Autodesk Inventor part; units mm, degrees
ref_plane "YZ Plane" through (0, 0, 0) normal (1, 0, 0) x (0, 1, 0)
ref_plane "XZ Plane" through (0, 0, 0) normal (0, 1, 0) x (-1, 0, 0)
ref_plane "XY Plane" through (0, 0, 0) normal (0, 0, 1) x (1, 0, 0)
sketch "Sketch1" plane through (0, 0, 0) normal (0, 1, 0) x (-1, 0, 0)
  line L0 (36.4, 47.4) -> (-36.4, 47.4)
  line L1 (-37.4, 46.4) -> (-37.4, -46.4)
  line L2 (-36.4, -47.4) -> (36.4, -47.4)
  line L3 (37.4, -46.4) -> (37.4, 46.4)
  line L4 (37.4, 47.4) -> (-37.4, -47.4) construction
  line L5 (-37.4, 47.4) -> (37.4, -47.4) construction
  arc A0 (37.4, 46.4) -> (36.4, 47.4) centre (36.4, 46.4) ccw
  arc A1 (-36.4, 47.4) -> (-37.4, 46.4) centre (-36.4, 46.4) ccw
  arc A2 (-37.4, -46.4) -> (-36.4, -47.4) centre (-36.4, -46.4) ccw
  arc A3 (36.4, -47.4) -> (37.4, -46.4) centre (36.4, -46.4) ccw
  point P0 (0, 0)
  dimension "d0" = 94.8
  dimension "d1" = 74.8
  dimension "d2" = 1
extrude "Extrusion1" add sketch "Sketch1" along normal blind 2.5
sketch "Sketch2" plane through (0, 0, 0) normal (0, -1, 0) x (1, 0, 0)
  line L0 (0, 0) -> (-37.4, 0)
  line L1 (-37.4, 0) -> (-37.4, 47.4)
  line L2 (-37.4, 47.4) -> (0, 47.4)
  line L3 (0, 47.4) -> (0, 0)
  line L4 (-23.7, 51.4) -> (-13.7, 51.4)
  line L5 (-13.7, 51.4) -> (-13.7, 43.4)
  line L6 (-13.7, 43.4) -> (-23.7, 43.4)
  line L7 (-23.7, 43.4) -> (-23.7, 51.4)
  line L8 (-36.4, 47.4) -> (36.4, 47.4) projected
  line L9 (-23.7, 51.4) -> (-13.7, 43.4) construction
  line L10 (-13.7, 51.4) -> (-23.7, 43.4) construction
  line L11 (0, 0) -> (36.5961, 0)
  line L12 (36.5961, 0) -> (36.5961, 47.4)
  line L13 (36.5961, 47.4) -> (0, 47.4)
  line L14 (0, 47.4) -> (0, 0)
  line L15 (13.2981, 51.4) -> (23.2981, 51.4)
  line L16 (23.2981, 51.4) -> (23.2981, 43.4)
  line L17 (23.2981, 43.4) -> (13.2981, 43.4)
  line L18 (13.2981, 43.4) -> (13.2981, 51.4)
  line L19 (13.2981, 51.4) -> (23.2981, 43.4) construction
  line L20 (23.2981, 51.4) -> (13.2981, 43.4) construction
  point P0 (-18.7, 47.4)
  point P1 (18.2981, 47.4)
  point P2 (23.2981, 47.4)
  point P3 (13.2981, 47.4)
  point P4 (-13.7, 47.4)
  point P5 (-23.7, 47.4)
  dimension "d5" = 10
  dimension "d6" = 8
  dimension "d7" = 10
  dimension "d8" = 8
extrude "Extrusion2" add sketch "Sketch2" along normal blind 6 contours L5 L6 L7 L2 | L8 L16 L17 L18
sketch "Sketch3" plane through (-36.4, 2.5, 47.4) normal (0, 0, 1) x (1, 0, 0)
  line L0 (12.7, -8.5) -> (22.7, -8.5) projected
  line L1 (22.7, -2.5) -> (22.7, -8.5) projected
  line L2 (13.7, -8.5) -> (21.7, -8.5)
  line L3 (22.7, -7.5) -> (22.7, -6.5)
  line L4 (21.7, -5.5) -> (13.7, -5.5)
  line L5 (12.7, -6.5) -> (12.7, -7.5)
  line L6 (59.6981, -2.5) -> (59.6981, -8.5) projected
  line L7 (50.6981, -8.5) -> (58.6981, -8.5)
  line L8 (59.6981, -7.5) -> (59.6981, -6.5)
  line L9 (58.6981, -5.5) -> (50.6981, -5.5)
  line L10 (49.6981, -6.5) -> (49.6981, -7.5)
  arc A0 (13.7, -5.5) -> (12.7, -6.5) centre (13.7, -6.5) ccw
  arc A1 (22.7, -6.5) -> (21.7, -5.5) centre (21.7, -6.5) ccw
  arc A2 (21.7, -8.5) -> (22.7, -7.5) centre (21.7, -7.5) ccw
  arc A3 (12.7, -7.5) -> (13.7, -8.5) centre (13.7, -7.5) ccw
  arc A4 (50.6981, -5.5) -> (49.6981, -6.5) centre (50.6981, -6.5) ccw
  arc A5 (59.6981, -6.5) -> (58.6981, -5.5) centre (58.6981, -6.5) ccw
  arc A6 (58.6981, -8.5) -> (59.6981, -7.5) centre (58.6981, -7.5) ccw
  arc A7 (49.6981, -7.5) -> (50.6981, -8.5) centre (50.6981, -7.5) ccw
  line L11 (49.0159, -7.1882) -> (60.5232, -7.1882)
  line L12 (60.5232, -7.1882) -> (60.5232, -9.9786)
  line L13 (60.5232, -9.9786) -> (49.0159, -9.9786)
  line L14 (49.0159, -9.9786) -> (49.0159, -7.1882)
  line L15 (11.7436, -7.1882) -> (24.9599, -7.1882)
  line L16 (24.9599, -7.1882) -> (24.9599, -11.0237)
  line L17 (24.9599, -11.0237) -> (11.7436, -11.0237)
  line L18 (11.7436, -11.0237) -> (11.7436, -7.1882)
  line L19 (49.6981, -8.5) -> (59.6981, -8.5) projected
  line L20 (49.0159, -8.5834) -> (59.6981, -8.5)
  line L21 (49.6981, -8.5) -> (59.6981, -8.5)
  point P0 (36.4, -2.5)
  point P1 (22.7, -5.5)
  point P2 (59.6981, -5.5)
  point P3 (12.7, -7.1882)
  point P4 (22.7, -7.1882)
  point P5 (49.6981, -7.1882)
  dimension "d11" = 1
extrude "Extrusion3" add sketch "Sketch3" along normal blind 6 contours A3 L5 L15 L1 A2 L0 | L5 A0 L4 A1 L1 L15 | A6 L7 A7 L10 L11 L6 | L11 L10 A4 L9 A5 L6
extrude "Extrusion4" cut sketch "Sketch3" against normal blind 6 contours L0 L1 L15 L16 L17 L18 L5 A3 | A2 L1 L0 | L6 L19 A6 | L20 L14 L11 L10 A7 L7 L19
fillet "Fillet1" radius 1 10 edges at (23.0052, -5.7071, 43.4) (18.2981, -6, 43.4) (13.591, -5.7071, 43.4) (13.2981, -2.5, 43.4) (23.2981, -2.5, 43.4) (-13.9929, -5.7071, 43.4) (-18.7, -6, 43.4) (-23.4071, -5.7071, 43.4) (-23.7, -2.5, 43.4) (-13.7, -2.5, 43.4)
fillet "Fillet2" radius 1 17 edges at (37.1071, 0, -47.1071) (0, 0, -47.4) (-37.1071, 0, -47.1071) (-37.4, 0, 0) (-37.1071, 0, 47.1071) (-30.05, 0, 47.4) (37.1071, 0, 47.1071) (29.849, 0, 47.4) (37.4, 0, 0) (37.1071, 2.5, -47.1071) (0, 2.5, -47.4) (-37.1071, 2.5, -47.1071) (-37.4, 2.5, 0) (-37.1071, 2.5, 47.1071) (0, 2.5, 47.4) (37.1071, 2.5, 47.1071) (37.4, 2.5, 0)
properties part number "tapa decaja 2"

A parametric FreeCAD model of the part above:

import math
import FreeCAD as App
import Part
import Sketcher


def edges_at(feature, points):
    """Names of the edges that pass closest to the given points."""
    edges = feature.Shape.Edges
    near = lambda p: min(range(len(edges)), key=lambda i: edges[i].distToShape(Part.Vertex(*p))[0])
    return sorted({f"Edge{near(p) + 1}" for p in points})

doc = App.newDocument("Part")
body = doc.addObject("PartDesign::Body", "Body")

sketch1 = body.newObject("Sketcher::SketchObject", "Sketch")
sketch1.AttachmentSupport = (doc.getObject("XZ_Plane"), [""])
sketch1.MapMode = "FlatFace"
sketch1.addGeometry([
    Part.ArcOfCircle(Part.Circle(App.Vector(-36.4, 46.4, 0), App.Vector(0, 0, 1), 1), math.radians(90), math.radians(180)),
    Part.LineSegment(App.Vector(-36.4, 47.4, 0), App.Vector(36.4, 47.4, 0)),
    Part.ArcOfCircle(Part.Circle(App.Vector(36.4, 46.4, 0), App.Vector(0, 0, 1), 1), math.radians(0), math.radians(90)),
    Part.LineSegment(App.Vector(37.4, 46.4, 0), App.Vector(37.4, -46.4, 0)),
    Part.ArcOfCircle(Part.Circle(App.Vector(36.4, -46.4, 0), App.Vector(0, 0, 1), 1), math.radians(-90), math.radians(0)),
    Part.LineSegment(App.Vector(36.4, -47.4, 0), App.Vector(-36.4, -47.4, 0)),
    Part.ArcOfCircle(Part.Circle(App.Vector(-36.4, -46.4, 0), App.Vector(0, 0, 1), 1), math.radians(180), math.radians(270)),
    Part.LineSegment(App.Vector(-37.4, -46.4, 0), App.Vector(-37.4, 46.4, 0)),
], False)
sketch1.addConstraint([
    Sketcher.Constraint("Tangent", 0, 1, 1, 1),
    Sketcher.Constraint("Tangent", 1, 2, 2, 2),
    Sketcher.Constraint("Tangent", 2, 1, 3, 1),
    Sketcher.Constraint("Tangent", 3, 2, 4, 2),
    Sketcher.Constraint("Tangent", 4, 1, 5, 1),
    Sketcher.Constraint("Tangent", 5, 2, 6, 2),
    Sketcher.Constraint("Tangent", 6, 1, 7, 1),
    Sketcher.Constraint("Tangent", 7, 2, 0, 2),
    Sketcher.Constraint("Horizontal", 1),
    Sketcher.Constraint("Vertical", 3),
    Sketcher.Constraint("Horizontal", 5),
    Sketcher.Constraint("Vertical", 7),
    Sketcher.Constraint("Equal", 0, 2),
    Sketcher.Constraint("Equal", 2, 4),
    Sketcher.Constraint("Equal", 4, 6),
    Sketcher.Constraint("Symmetric", 0, 3, 4, 3, -1, 1),
    Sketcher.Constraint("Radius", 0, 1.0),
    Sketcher.Constraint("DistanceX", 6, 1, 3, 2, 74.8),
    Sketcher.Constraint("DistanceY", 3, 2, 3, 1, 92.8),
])
pad1 = body.newObject("PartDesign::Pad", "Pad")
pad1.Profile = sketch1
pad1.Length = 2.5
pad1.Reversed = True

sketch2 = body.newObject("Sketcher::SketchObject", "Sketch001")
sketch2.AttachmentSupport = (doc.getObject("XZ_Plane"), [""])
sketch2.MapMode = "FlatFace"
sketch2.addGeometry([
    Part.LineSegment(App.Vector(-13.7, 43.4, 0), App.Vector(-13.7, 47.4, 0)),
    Part.LineSegment(App.Vector(-13.7, 47.4, 0), App.Vector(-23.7, 47.4, 0)),
    Part.LineSegment(App.Vector(-23.7, 47.4, 0), App.Vector(-23.7, 43.4, 0)),
    Part.LineSegment(App.Vector(-23.7, 43.4, 0), App.Vector(-13.7, 43.4, 0)),
    Part.LineSegment(App.Vector(23.3, 47.4, 0), App.Vector(13.3, 47.4, 0)),
    Part.LineSegment(App.Vector(13.3, 47.4, 0), App.Vector(13.3, 43.4, 0)),
    Part.LineSegment(App.Vector(13.3, 43.4, 0), App.Vector(23.3, 43.4, 0)),
    Part.LineSegment(App.Vector(23.3, 43.4, 0), App.Vector(23.3, 47.4, 0)),
], False)
sketch2.addConstraint([
    Sketcher.Constraint("Coincident", 0, 2, 1, 1),
    Sketcher.Constraint("Coincident", 1, 2, 2, 1),
    Sketcher.Constraint("Coincident", 2, 2, 3, 1),
    Sketcher.Constraint("Coincident", 3, 2, 0, 1),
    Sketcher.Constraint("Coincident", 4, 2, 5, 1),
    Sketcher.Constraint("Coincident", 5, 2, 6, 1),
    Sketcher.Constraint("Coincident", 6, 2, 7, 1),
    Sketcher.Constraint("Coincident", 7, 2, 4, 1),
    Sketcher.Constraint("Vertical", 0),
    Sketcher.Constraint("Horizontal", 1),
    Sketcher.Constraint("Vertical", 2),
    Sketcher.Constraint("Horizontal", 3),
    Sketcher.Constraint("Horizontal", 4),
    Sketcher.Constraint("Vertical", 5),
    Sketcher.Constraint("Horizontal", 6),
    Sketcher.Constraint("Vertical", 7),
    Sketcher.Constraint("Horizontal", 1, 2, 4, 2),
    Sketcher.Constraint("Horizontal", 3, 2, 5, 2),
    Sketcher.Constraint("Equal", 3, 4),
    Sketcher.Constraint("DistanceX", 1, 2, 1, 1, 10.0),
    Sketcher.Constraint("DistanceY", 0, 1, 0, 2, 4.0),
    Sketcher.Constraint("DistanceX", 0, 2, -1, 1, 13.7),
    Sketcher.Constraint("DistanceY", -1, 1, 0, 2, 47.4),
    Sketcher.Constraint("DistanceX", -1, 1, 4, 2, 13.298),
])
pad2 = body.newObject("PartDesign::Pad", "Pad001")
pad2.Profile = sketch2
pad2.Length = 6

sketch3 = body.newObject("Sketcher::SketchObject", "Sketch002")
sketch3.AttachmentSupport = (doc.getObject("XY_Plane"), [""])
sketch3.MapMode = "FlatFace"
sketch3.AttachmentOffset = App.Placement(App.Vector(0, 0, 47.4), App.Rotation())
sketch3.addGeometry([
    Part.ArcOfCircle(Part.Circle(App.Vector(-22.7, -5, 0), App.Vector(0, 0, 1), 1), math.radians(180), math.radians(270)),
    Part.LineSegment(App.Vector(-22.7, -6, 0), App.Vector(-14.7, -6, 0)),
    Part.ArcOfCircle(Part.Circle(App.Vector(-14.7, -5, 0), App.Vector(0, 0, 1), 1), math.radians(-90), math.radians(0)),
    Part.LineSegment(App.Vector(-13.7, -5, 0), App.Vector(-13.7, -4, 0)),
    Part.ArcOfCircle(Part.Circle(App.Vector(-14.7, -4, 0), App.Vector(0, 0, 1), 1), math.radians(0), math.radians(90)),
    Part.LineSegment(App.Vector(-14.7, -3, 0), App.Vector(-22.7, -3, 0)),
    Part.ArcOfCircle(Part.Circle(App.Vector(-22.7, -4, 0), App.Vector(0, 0, 1), 1), math.radians(90), math.radians(180)),
    Part.LineSegment(App.Vector(-23.7, -4, 0), App.Vector(-23.7, -5, 0)),
    Part.ArcOfCircle(Part.Circle(App.Vector(22.3, -5, 0), App.Vector(0, 0, 1), 1), math.radians(-90), math.radians(0)),
    Part.LineSegment(App.Vector(23.3, -5, 0), App.Vector(23.3, -4, 0)),
    Part.ArcOfCircle(Part.Circle(App.Vector(22.3, -4, 0), App.Vector(0, 0, 1), 1), math.radians(0), math.radians(90)),
    Part.LineSegment(App.Vector(22.3, -3, 0), App.Vector(14.3, -3, 0)),
    Part.ArcOfCircle(Part.Circle(App.Vector(14.3, -4, 0), App.Vector(0, 0, 1), 1), math.radians(90), math.radians(180)),
    Part.LineSegment(App.Vector(13.3, -4, 0), App.Vector(13.3, -5, 0)),
    Part.ArcOfCircle(Part.Circle(App.Vector(14.3, -5, 0), App.Vector(0, 0, 1), 1), math.radians(180), math.radians(270)),
    Part.LineSegment(App.Vector(14.3, -6, 0), App.Vector(22.3, -6, 0)),
], False)
sketch3.addConstraint([
    Sketcher.Constraint("Tangent", 0, 2, 1, 1),
    Sketcher.Constraint("Tangent", 1, 2, 2, 1),
    Sketcher.Constraint("Tangent", 2, 2, 3, 1),
    Sketcher.Constraint("Tangent", 3, 2, 4, 1),
    Sketcher.Constraint("Tangent", 4, 2, 5, 1),
    Sketcher.Constraint("Tangent", 5, 2, 6, 1),
    Sketcher.Constraint("Tangent", 6, 2, 7, 1),
    Sketcher.Constraint("Tangent", 7, 2, 0, 1),
    Sketcher.Constraint("Tangent", 8, 2, 9, 1),
    Sketcher.Constraint("Tangent", 9, 2, 10, 1),
    Sketcher.Constraint("Tangent", 10, 2, 11, 1),
    Sketcher.Constraint("Tangent", 11, 2, 12, 1),
    Sketcher.Constraint("Tangent", 12, 2, 13, 1),
    Sketcher.Constraint("Tangent", 13, 2, 14, 1),
    Sketcher.Constraint("Tangent", 14, 2, 15, 1),
    Sketcher.Constraint("Tangent", 15, 2, 8, 1),
    Sketcher.Constraint("Horizontal", 1),
    Sketcher.Constraint("Vertical", 3),
    Sketcher.Constraint("Horizontal", 5),
    Sketcher.Constraint("Vertical", 7),
    Sketcher.Constraint("Vertical", 9),
    Sketcher.Constraint("Horizontal", 11),
    Sketcher.Constraint("Vertical", 13),
    Sketcher.Constraint("Horizontal", 15),
    Sketcher.Constraint("Equal", 0, 2),
    Sketcher.Constraint("Equal", 2, 4),
    Sketcher.Constraint("Equal", 4, 6),
    Sketcher.Constraint("Equal", 6, 8),
    Sketcher.Constraint("Equal", 8, 10),
    Sketcher.Constraint("Equal", 10, 12),
    Sketcher.Constraint("Equal", 12, 14),
    Sketcher.Constraint("Horizontal", 2, 3, 8, 3),
    Sketcher.Constraint("Horizontal", 6, 3, 10, 3),
    Sketcher.Constraint("Equal", 5, 11),
    Sketcher.Constraint("Radius", 0, 1.0),
    Sketcher.Constraint("DistanceY", 3, 1, 3, 2, 1.0),
    Sketcher.Constraint("DistanceX", 1, 1, 1, 2, 8.0),
    Sketcher.Constraint("DistanceY", 0, 3, -1, 1, 5.0),
    Sketcher.Constraint("DistanceX", 0, 3, -1, 1, 22.7),
    Sketcher.Constraint("DistanceX", -1, 1, 8, 3, 22.298),
])
pad3 = body.newObject("PartDesign::Pad", "Pad002")
pad3.Profile = sketch3
pad3.Length = 6

sketch4 = body.newObject("Sketcher::SketchObject", "Sketch003")
sketch4.AttachmentSupport = (doc.getObject("XY_Plane"), [""])
sketch4.MapMode = "FlatFace"
sketch4.AttachmentOffset = App.Placement(App.Vector(0, 0, 47.4), App.Rotation())
sketch4.addGeometry([
    Part.LineSegment(App.Vector(-14.7, -6, 0), App.Vector(-22.7, -6, 0)),
    Part.ArcOfCircle(Part.Circle(App.Vector(-22.7, -5, 0), App.Vector(0, 0, 1), 1), math.radians(180), math.radians(270)),
    Part.LineSegment(App.Vector(-23.7, -5, 0), App.Vector(-23.7, -4.69, 0)),
    Part.LineSegment(App.Vector(-23.7, -4.69, 0), App.Vector(-24.66, -4.69, 0)),
    Part.LineSegment(App.Vector(-24.66, -4.69, 0), App.Vector(-24.66, -8.52, 0)),
    Part.LineSegment(App.Vector(-24.66, -8.52, 0), App.Vector(-11.44, -8.52, 0)),
    Part.LineSegment(App.Vector(-11.44, -8.52, 0), App.Vector(-11.44, -4.69, 0)),
    Part.LineSegment(App.Vector(-11.44, -4.69, 0), App.Vector(-13.7, -4.69, 0)),
    Part.LineSegment(App.Vector(-13.7, -4.69, 0), App.Vector(-13.7, -5, 0)),
    Part.ArcOfCircle(Part.Circle(App.Vector(-14.7, -5, 0), App.Vector(0, 0, 1), 1), math.radians(-90), math.radians(0)),
    Part.LineSegment(App.Vector(23.3, -6, 0), App.Vector(23.3, -5, 0)),
    Part.ArcOfCircle(Part.Circle(App.Vector(22.3, -5, 0), App.Vector(0, 0, 1), 1), math.radians(-90), math.radians(0)),
    Part.LineSegment(App.Vector(22.3, -6, 0), App.Vector(14.3, -6, 0)),
    Part.ArcOfCircle(Part.Circle(App.Vector(14.3, -5, 0), App.Vector(0, 0, 1), 1), math.radians(180), math.radians(270)),
    Part.LineSegment(App.Vector(13.3, -5, 0), App.Vector(13.3, -4.69, 0)),
    Part.LineSegment(App.Vector(13.3, -4.69, 0), App.Vector(12.62, -4.69, 0)),
    Part.LineSegment(App.Vector(12.62, -4.69, 0), App.Vector(12.62, -6.08, 0)),
    Part.LineSegment(App.Vector(12.62, -6.08, 0), App.Vector(23.3, -6, 0)),
], False)
sketch4.addConstraint([
    Sketcher.Constraint("Tangent", 0, 2, 1, 2),
    Sketcher.Constraint("Tangent", 1, 1, 2, 1),
    Sketcher.Constraint("Coincident", 2, 2, 3, 1),
    Sketcher.Constraint("Coincident", 3, 2, 4, 1),
    Sketcher.Constraint("Coincident", 4, 2, 5, 1),
    Sketcher.Constraint("Coincident", 5, 2, 6, 1),
    Sketcher.Constraint("Coincident", 6, 2, 7, 1),
    Sketcher.Constraint("Coincident", 7, 2, 8, 1),
    Sketcher.Constraint("Tangent", 8, 2, 9, 2),
    Sketcher.Constraint("Tangent", 9, 1, 0, 1),
    Sketcher.Constraint("Tangent", 10, 2, 11, 2),
    Sketcher.Constraint("Tangent", 11, 1, 12, 1),
    Sketcher.Constraint("Tangent", 12, 2, 13, 2),
    Sketcher.Constraint("Tangent", 13, 1, 14, 1),
    Sketcher.Constraint("Coincident", 14, 2, 15, 1),
    Sketcher.Constraint("Coincident", 15, 2, 16, 1),
    Sketcher.Constraint("Coincident", 16, 2, 17, 1),
    Sketcher.Constraint("Coincident", 17, 2, 10, 1),
    Sketcher.Constraint("Horizontal", 0),
    Sketcher.Constraint("Vertical", 2),
    Sketcher.Constraint("Horizontal", 3),
    Sketcher.Constraint("Vertical", 4),
    Sketcher.Constraint("Horizontal", 5),
    Sketcher.Constraint("Vertical", 6),
    Sketcher.Constraint("Horizontal", 7),
    Sketcher.Constraint("Vertical", 8),
    Sketcher.Constraint("Vertical", 10),
    Sketcher.Constraint("Horizontal", 12),
    Sketcher.Constraint("Vertical", 14),
    Sketcher.Constraint("Horizontal", 15),
    Sketcher.Constraint("Vertical", 16),
    Sketcher.Constraint("Equal", 1, 9),
    Sketcher.Constraint("Equal", 9, 11),
    Sketcher.Constraint("Equal", 11, 13),
    Sketcher.Constraint("Horizontal", 9, 3, 11, 3),
    Sketcher.Constraint("Horizontal", 3, 2, 6, 2),
    Sketcher.Constraint("Horizontal", 7, 2, 14, 2),
    Sketcher.Constraint("Horizontal", 12, 2, 17, 2),
    Sketcher.Constraint("Equal", 0, 12),
    Sketcher.Constraint("Radius", 1, 1.0),
    Sketcher.Constraint("DistanceX", 0, 2, 0, 1, 8.0),
    Sketcher.Constraint("DistanceY", 1, 3, -1, 1, 5.0),
    Sketcher.Constraint("DistanceX", 7, 2, 7, 1, 2.26),
    Sketcher.Constraint("DistanceX", 1, 3, -1, 1, 22.7),
    Sketcher.Constraint("DistanceX", 3, 2, 3, 1, 0.9564),
    Sketcher.Constraint("DistanceX", 15, 2, 15, 1, 0.6822),
    Sketcher.Constraint("DistanceY", 2, 1, 2, 2, 0.3118),
    Sketcher.Constraint("DistanceY", 4, 2, 4, 1, 3.8355),
    Sketcher.Constraint("DistanceY", 16, 2, 16, 1, 1.3952),
    Sketcher.Constraint("DistanceX", -1, 1, 11, 3, 22.298),
])
pocket1 = body.newObject("PartDesign::Pocket", "Pocket")
pocket1.Profile = sketch4
pocket1.Length = 6
doc.recompute()

fillet = body.newObject("PartDesign::Fillet", "Fillet")
fillet.Base = (pocket1, edges_at(pocket1, [
    (23.005, -5.707, 43.4),
    (18.298, -6, 43.4),
    (13.591, -5.707, 43.4),
    (13.298, -2.5, 43.4),
    (23.298, -2.5, 43.4),
    (-13.993, -5.707, 43.4),
    (-18.7, -6, 43.4),
    (-23.407, -5.707, 43.4),
    (-23.7, -2.5, 43.4),
    (-13.7, -2.5, 43.4),
]))
fillet.Radius = 1
doc.recompute()

fillet2 = body.newObject("PartDesign::Fillet", "Fillet001")
fillet2.Base = (fillet, edges_at(fillet, [
    (37.107, 0, -47.107),
    (0, 0, -47.4),
    (-37.107, 0, -47.107),
    (-37.4, 0, 0),
    (-37.107, 0, 47.107),
    (-30.05, 0, 47.4),
    (37.107, 0, 47.107),
    (29.849, 0, 47.4),
    (37.4, 0, 0),
    (37.107, 2.5, -47.107),
    (0, 2.5, -47.4),
    (-37.107, 2.5, -47.107),
    (-37.4, 2.5, 0),
    (-37.107, 2.5, 47.107),
    (0, 2.5, 47.4),
    (37.107, 2.5, 47.107),
    (37.4, 2.5, 0),
]))
fillet2.Radius = 1

doc.recompute()
